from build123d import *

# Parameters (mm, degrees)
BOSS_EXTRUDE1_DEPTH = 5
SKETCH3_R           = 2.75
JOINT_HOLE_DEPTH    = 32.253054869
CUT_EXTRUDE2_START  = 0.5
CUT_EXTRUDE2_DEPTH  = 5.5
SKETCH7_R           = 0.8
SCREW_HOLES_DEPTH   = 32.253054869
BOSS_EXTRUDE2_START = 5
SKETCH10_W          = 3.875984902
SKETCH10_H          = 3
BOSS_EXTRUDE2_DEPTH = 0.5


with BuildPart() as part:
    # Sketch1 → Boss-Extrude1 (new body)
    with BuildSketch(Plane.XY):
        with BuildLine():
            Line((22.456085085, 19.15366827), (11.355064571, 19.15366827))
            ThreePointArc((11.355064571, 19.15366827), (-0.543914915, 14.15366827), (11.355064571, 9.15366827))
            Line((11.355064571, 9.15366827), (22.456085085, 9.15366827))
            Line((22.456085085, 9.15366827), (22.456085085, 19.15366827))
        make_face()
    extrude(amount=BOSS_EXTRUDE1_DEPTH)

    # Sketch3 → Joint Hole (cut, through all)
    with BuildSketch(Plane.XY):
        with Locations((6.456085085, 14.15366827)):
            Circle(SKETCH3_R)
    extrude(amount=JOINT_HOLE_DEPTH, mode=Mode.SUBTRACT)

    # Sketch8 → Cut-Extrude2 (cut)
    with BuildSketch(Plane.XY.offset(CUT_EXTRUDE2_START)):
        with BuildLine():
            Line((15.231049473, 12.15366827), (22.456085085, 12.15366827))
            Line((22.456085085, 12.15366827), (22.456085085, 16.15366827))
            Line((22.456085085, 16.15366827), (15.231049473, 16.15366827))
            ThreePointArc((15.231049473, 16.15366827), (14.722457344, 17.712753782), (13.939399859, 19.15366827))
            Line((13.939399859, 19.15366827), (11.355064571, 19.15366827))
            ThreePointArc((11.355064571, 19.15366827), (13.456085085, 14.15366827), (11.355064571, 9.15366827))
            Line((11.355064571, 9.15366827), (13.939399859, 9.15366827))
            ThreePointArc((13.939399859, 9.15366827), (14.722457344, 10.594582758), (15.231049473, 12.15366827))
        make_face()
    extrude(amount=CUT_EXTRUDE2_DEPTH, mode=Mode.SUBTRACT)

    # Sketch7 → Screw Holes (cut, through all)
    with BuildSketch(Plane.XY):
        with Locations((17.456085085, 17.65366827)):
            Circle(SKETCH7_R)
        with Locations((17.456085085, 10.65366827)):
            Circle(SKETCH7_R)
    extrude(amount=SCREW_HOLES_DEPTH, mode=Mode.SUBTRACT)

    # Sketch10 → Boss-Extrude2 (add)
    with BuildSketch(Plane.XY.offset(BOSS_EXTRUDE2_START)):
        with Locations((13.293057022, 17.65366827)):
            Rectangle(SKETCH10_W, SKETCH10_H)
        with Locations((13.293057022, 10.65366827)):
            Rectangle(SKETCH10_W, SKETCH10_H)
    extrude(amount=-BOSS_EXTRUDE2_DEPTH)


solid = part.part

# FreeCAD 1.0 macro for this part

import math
import FreeCAD as App
import Part
import Sketcher

V = App.Vector


def add_polygon(sketch, points):
    """Adds a closed chain of lines whose ends are joined by coincident constraints."""
    first, n = sketch.GeometryCount, len(points)
    for a, b in zip(points, points[1:] + points[:1]):
        sketch.addGeometry(Part.LineSegment(App.Vector(*a, 0), App.Vector(*b, 0)), False)
    for i in range(n):
        sketch.addConstraint(Sketcher.Constraint("Coincident", first + i, 2, first + (i + 1) % n, 1))

doc = App.newDocument("Part")
body = doc.addObject("PartDesign::Body", "Body")

# Sketch on XY plane
sketch1 = body.newObject("Sketcher::SketchObject", "Sketch")
sketch1.AttachmentSupport = (doc.getObject("XY_Plane"), [""])
sketch1.MapMode = "FlatFace"
sketch1.addGeometry(Part.LineSegment(V(22, 19, 0), V(11, 19, 0)), False)
sketch1.addGeometry(Part.ArcOfCircle(Part.Circle(V(6, 14, 0), V(0, 0, 1), 7), math.radians(46), math.radians(314)), False)
sketch1.addGeometry(Part.LineSegment(V(11, 9, 0), V(22, 9, 0)), False)
sketch1.addGeometry(Part.LineSegment(V(22, 9, 0), V(22, 19, 0)), False)
sketch1.addConstraint(Sketcher.Constraint("Coincident", 0, 2, 1, 1))
sketch1.addConstraint(Sketcher.Constraint("Coincident", 1, 2, 2, 1))
sketch1.addConstraint(Sketcher.Constraint("Coincident", 2, 2, 3, 1))
sketch1.addConstraint(Sketcher.Constraint("Coincident", 3, 2, 0, 1))
sketch1.addConstraint(Sketcher.Constraint("Horizontal", 0))
sketch1.addConstraint(Sketcher.Constraint("Horizontal", 2))
sketch1.addConstraint(Sketcher.Constraint("Vertical", 3))
sketch1.addConstraint(Sketcher.Constraint("Vertical", 0, 2, 1, 2))
sketch1.addConstraint(Sketcher.Constraint("Radius", 1, 7.0))
sketch1.addConstraint(Sketcher.Constraint("DistanceY", 3, 1, 3, 2, 10.0))
sketch1.addConstraint(Sketcher.Constraint("DistanceX", 1, 3, 2, 2, 16.0))
sketch1.addConstraint(Sketcher.Constraint("DistanceY", -1, 1, 1, 3, 14.153668))
sketch1.addConstraint(Sketcher.Constraint("DistanceX", -1, 1, 1, 3, 6.456085))
pad1 = body.newObject("PartDesign::Pad", "Pad")
pad1.Profile = sketch1
pad1.Length = 5

# Sketch on XY plane
sketch2 = body.newObject("Sketcher::SketchObject", "Sketch001")
sketch2.AttachmentSupport = (doc.getObject("XY_Plane"), [""])
sketch2.MapMode = "FlatFace"
sketch2.addGeometry(Part.Circle(V(6.5, 14.2, 0), V(0, 0, 1), 2.8), False)
sketch2.addConstraint(Sketcher.Constraint("Diameter", 0, 5.5))
sketch2.addConstraint(Sketcher.Constraint("DistanceY", -1, 1, 0, 3, 14.153668))
sketch2.addConstraint(Sketcher.Constraint("DistanceX", -1, 1, 0, 3, 6.456085))
pocket1 = body.newObject("PartDesign::Pocket", "Pocket")
pocket1.Profile = sketch2
pocket1.Type = "ThroughAll"
pocket1.Reversed = True

# Sketch on XY plane
sketch3 = body.newObject("Sketcher::SketchObject", "Sketch002")
sketch3.AttachmentSupport = (doc.getObject("XY_Plane"), [""])
sketch3.MapMode = "FlatFace"
sketch3.AttachmentOffset = App.Placement(V(0, 0, 0.5), App.Rotation())
sketch3.addGeometry(Part.LineSegment(V(15.2, 12.2, 0), V(22.5, 12.2, 0)), False)
sketch3.addGeometry(Part.LineSegment(V(22.5, 12.2, 0), V(22.5, 16.2, 0)), False)
sketch3.addGeometry(Part.LineSegment(V(22.5, 16.2, 0), V(15.2, 16.2, 0)), False)
sketch3.addGeometry(Part.ArcOfCircle(Part.Circle(V(6.5, 14.2, 0), V(0, 0, 1), 9), math.radians(13), math.radians(34)), False)
sketch3.addGeometry(Part.LineSegment(V(13.9, 19.2, 0), V(11.4, 19.2, 0)), False)
sketch3.addGeometry(Part.ArcOfCircle(Part.Circle(V(6.5, 14.2, 0), V(0, 0, 1), 7), math.radians(-46), math.radians(46)), False)
sketch3.addGeometry(Part.LineSegment(V(11.4, 9.2, 0), V(13.9, 9.2, 0)), False)
sketch3.addGeometry(Part.ArcOfCircle(Part.Circle(V(6.5, 14.2, 0), V(0, 0, 1), 9), math.radians(-34), math.radians(-13)), False)
sketch3.addConstraint(Sketcher.Constraint("Coincident", 0, 2, 1, 1))
sketch3.addConstraint(Sketcher.Constraint("Coincident", 1, 2, 2, 1))
sketch3.addConstraint(Sketcher.Constraint("Coincident", 2, 2, 3, 1))
sketch3.addConstraint(Sketcher.Constraint("Coincident", 3, 2, 4, 1))
sketch3.addConstraint(Sketcher.Constraint("Coincident", 4, 2, 5, 2))
sketch3.addConstraint(Sketcher.Constraint("Coincident", 5, 1, 6, 1))
sketch3.addConstraint(Sketcher.Constraint("Coincident", 6, 2, 7, 1))
sketch3.addConstraint(Sketcher.Constraint("Coincident", 7, 2, 0, 1))
sketch3.addConstraint(Sketcher.Constraint("Horizontal", 0))
sketch3.addConstraint(Sketcher.Constraint("Vertical", 1))
sketch3.addConstraint(Sketcher.Constraint("Horizontal", 2))
sketch3.addConstraint(Sketcher.Constraint("Horizontal", 4))
sketch3.addConstraint(Sketcher.Constraint("Horizontal", 6))
sketch3.addConstraint(Sketcher.Constraint("Coincident", 5, 3, 3, 3))
sketch3.addConstraint(Sketcher.Constraint("Coincident", 7, 3, 3, 3))
sketch3.addConstraint(Sketcher.Constraint("Equal", 3, 7))
sketch3.addConstraint(Sketcher.Constraint("Vertical", 4, 2, 5, 1))
sketch3.addConstraint(Sketcher.Constraint("Vertical", 2, 2, 7, 2))
sketch3.addConstraint(Sketcher.Constraint("Radius", 3, 9.0))
sketch3.addConstraint(Sketcher.Constraint("Radius", 5, 7.0))
sketch3.addConstraint(Sketcher.Constraint("DistanceY", 1, 1, 1, 2, 4.0))
sketch3.addConstraint(Sketcher.Constraint("DistanceX", 5, 3, 0, 2, 16.0))
sketch3.addConstraint(Sketcher.Constraint("DistanceY", 2, 2, 3, 2, 3.0))
sketch3.addConstraint(Sketcher.Constraint("DistanceX", -1, 1, 3, 2, 13.9394))
sketch3.addConstraint(Sketcher.Constraint("DistanceY", -1, 1, 3, 3, 14.153668))
pocket2 = body.newObject("PartDesign::Pocket", "Pocket001")
pocket2.Profile = sketch3
pocket2.Length = 5.5
pocket2.Reversed = True

# Sketch on XY plane
sketch4 = body.newObject("Sketcher::SketchObject", "Sketch003")
sketch4.AttachmentSupport = (doc.getObject("XY_Plane"), [""])
sketch4.MapMode = "FlatFace"
sketch4.addGeometry(Part.Circle(V(17.5, 17.7, 0), V(0, 0, 1), 0.8), False)
sketch4.addGeometry(Part.Circle(V(17.5, 10.7, 0), V(0, 0, 1), 0.8), False)
sketch4.addConstraint(Sketcher.Constraint("Equal", 0, 1))
sketch4.addConstraint(Sketcher.Constraint("Vertical", 0, 3, 1, 3))
sketch4.addConstraint(Sketcher.Constraint("Diameter", 0, 1.6))
sketch4.addConstraint(Sketcher.Constraint("DistanceY", 1, 3, 0, 3, 7.0))
sketch4.addConstraint(Sketcher.Constraint("DistanceY", -1, 1, 0, 3, 17.653668))
sketch4.addConstraint(Sketcher.Constraint("DistanceX", -1, 1, 0, 3, 17.456085))
pocket3 = body.newObject("PartDesign::Pocket", "Pocket002")
pocket3.Profile = sketch4
pocket3.Type = "ThroughAll"
pocket3.Reversed = True

# Sketch on XY plane
sketch5 = body.newObject("Sketcher::SketchObject", "Sketch004")
sketch5.AttachmentSupport = (doc.getObject("XY_Plane"), [""])
sketch5.MapMode = "FlatFace"
sketch5.AttachmentOffset = App.Placement(V(0, 0, 5), App.Rotation())
add_polygon(sketch5, [(11.4, 19.2), (11.4, 16.2), (15.2, 16.2), (15.2, 19.2)])  # lines 0-3
add_polygon(sketch5, [(11.4, 12.2), (11.4, 9.2), (15.2, 9.2), (15.2, 12.2)])  # lines 4-7
sketch5.addConstraint(Sketcher.Constraint("Vertical", 0))
sketch5.addConstraint(Sketcher.Constraint("Horizontal", 1))
sketch5.addConstraint(Sketcher.Constraint("Vertical", 2))
sketch5.addConstraint(Sketcher.Constraint("Horizontal", 3))
sketch5.addConstraint(Sketcher.Constraint("Vertical", 4))
sketch5.addConstraint(Sketcher.Constraint("Horizontal", 5))
sketch5.addConstraint(Sketcher.Constraint("Vertical", 6))
sketch5.addConstraint(Sketcher.Constraint("Horizontal", 7))
sketch5.addConstraint(Sketcher.Constraint("Vertical", 3, 2, 4, 2))
sketch5.addConstraint(Sketcher.Constraint("Vertical", 2, 2, 5, 2))
sketch5.addConstraint(Sketcher.Constraint("Equal", 2, 4))
sketch5.addConstraint(Sketcher.Constraint("DistanceY", 0, 2, 0, 1, 3.0))
sketch5.addConstraint(Sketcher.Constraint("DistanceY", 4, 2, 0, 2, 7.0))
sketch5.addConstraint(Sketcher.Constraint("DistanceX", 1, 1, 1, 2, 3.875985))
sketch5.addConstraint(Sketcher.Constraint("DistanceY", -1, 1, 0, 2, 16.153668))
sketch5.addConstraint(Sketcher.Constraint("DistanceX", -1, 1, 1, 2, 15.231049))
pad2 = body.newObject("PartDesign::Pad", "Pad001")
pad2.Profile = sketch5
pad2.Length = 0.5
pad2.Reversed = True

doc.recompute()
